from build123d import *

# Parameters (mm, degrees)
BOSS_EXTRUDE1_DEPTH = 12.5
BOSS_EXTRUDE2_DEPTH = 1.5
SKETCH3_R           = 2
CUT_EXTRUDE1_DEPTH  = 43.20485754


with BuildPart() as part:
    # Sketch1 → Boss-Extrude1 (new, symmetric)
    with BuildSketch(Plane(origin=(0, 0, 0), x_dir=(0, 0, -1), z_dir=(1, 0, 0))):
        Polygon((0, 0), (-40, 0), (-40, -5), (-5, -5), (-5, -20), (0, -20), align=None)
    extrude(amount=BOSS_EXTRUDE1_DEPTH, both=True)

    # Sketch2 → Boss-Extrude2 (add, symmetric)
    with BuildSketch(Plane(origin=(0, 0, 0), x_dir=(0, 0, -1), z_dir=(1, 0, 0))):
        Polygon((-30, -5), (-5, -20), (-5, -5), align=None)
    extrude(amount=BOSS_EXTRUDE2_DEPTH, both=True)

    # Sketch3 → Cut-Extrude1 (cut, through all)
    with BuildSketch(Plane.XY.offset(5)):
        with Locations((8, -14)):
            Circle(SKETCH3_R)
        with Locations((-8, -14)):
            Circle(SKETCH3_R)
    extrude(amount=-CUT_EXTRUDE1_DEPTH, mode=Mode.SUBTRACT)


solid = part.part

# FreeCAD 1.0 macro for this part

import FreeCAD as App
import Part
import Sketcher


def add_polygon(sketch, points):
    """Adds a closed chain of lines whose ends are joined by coincident constraints."""
    first, n = sketch.GeometryCount, len(points)
    for a, b in zip(points, points[1:] + points[:1]):
        sketch.addGeometry(Part.LineSegment(App.Vector(*a, 0), App.Vector(*b, 0)), False)
    for i in range(n):
        sketch.addConstraint(Sketcher.Constraint("Coincident", first + i, 2, first + (i + 1) % n, 1))

doc = App.newDocument("Part")
body = doc.addObject("PartDesign::Body", "Body")

sketch1 = body.newObject("Sketcher::SketchObject", "Sketch")
sketch1.AttachmentSupport = (doc.getObject("YZ_Plane"), [""])
sketch1.MapMode = "FlatFace"
add_polygon(sketch1, [(0, 0), (0, 40), (-5, 40), (-5, 5), (-20, 5), (-20, 0)])
sketch1.addConstraint(Sketcher.Constraint("Vertical", 0))
sketch1.addConstraint(Sketcher.Constraint("Horizontal", 1))
sketch1.addConstraint(Sketcher.Constraint("Vertical", 2))
sketch1.addConstraint(Sketcher.Constraint("Horizontal", 3))
sketch1.addConstraint(Sketcher.Constraint("Vertical", 4))
sketch1.addConstraint(Sketcher.Constraint("Horizontal", 5))
sketch1.addConstraint(Sketcher.Constraint("Coincident", 5, 2, -1, 1))
sketch1.addConstraint(Sketcher.Constraint("Equal", 1, 4))
sketch1.addConstraint(Sketcher.Constraint("DistanceX", 1, 2, 1, 1, 5.0))
sketch1.addConstraint(Sketcher.Constraint("DistanceX", 3, 2, 3, 1, 15.0))
sketch1.addConstraint(Sketcher.Constraint("DistanceY", 0, 1, 0, 2, 40.0))
pad1 = body.newObject("PartDesign::Pad", "Pad")
pad1.Profile = sketch1
pad1.Length = 25
pad1.Midplane = True

sketch2 = body.newObject("Sketcher::SketchObject", "Sketch001")
sketch2.AttachmentSupport = (doc.getObject("YZ_Plane"), [""])
sketch2.MapMode = "FlatFace"
add_polygon(sketch2, [(-5, 30), (-20, 5), (-5, 5)])
sketch2.addConstraint(Sketcher.Constraint("Horizontal", 1))
sketch2.addConstraint(Sketcher.Constraint("Vertical", 2))
sketch2.addConstraint(Sketcher.Constraint("DistanceX", 1, 1, 1, 2, 15.0))
sketch2.addConstraint(Sketcher.Constraint("DistanceY", 2, 1, 2, 2, 25.0))
sketch2.addConstraint(Sketcher.Constraint("DistanceX", 0, 2, -1, 1, 20.0))
sketch2.addConstraint(Sketcher.Constraint("DistanceY", -1, 1, 0, 2, 5.0))
pad2 = body.newObject("PartDesign::Pad", "Pad001")
pad2.Profile = sketch2
pad2.Length = 3
pad2.Midplane = True

sketch3 = body.newObject("Sketcher::SketchObject", "Sketch002")
sketch3.AttachmentSupport = (doc.getObject("XY_Plane"), [""])
sketch3.MapMode = "FlatFace"
sketch3.AttachmentOffset = App.Placement(App.Vector(0, 0, 5), App.Rotation())
sketch3.addGeometry(Part.Circle(App.Vector(8, -14, 0), App.Vector(0, 0, 1), 2), False)
sketch3.addGeometry(Part.Circle(App.Vector(-8, -14, 0), App.Vector(0, 0, 1), 2), False)
sketch3.addConstraint(Sketcher.Constraint("Equal", 0, 1))
sketch3.addConstraint(Sketcher.Constraint("Symmetric", 0, 3, 1, 3, -2))
sketch3.addConstraint(Sketcher.Constraint("Diameter", 0, 4.0))
sketch3.addConstraint(Sketcher.Constraint("DistanceX", -1, 1, 0, 3, 8.0))
sketch3.addConstraint(Sketcher.Constraint("DistanceY", 0, 3, -1, 1, 14.0))
pocket1 = body.newObject("PartDesign::Pocket", "Pocket")
pocket1.Profile = sketch3
pocket1.Type = "ThroughAll"

doc.recompute()
